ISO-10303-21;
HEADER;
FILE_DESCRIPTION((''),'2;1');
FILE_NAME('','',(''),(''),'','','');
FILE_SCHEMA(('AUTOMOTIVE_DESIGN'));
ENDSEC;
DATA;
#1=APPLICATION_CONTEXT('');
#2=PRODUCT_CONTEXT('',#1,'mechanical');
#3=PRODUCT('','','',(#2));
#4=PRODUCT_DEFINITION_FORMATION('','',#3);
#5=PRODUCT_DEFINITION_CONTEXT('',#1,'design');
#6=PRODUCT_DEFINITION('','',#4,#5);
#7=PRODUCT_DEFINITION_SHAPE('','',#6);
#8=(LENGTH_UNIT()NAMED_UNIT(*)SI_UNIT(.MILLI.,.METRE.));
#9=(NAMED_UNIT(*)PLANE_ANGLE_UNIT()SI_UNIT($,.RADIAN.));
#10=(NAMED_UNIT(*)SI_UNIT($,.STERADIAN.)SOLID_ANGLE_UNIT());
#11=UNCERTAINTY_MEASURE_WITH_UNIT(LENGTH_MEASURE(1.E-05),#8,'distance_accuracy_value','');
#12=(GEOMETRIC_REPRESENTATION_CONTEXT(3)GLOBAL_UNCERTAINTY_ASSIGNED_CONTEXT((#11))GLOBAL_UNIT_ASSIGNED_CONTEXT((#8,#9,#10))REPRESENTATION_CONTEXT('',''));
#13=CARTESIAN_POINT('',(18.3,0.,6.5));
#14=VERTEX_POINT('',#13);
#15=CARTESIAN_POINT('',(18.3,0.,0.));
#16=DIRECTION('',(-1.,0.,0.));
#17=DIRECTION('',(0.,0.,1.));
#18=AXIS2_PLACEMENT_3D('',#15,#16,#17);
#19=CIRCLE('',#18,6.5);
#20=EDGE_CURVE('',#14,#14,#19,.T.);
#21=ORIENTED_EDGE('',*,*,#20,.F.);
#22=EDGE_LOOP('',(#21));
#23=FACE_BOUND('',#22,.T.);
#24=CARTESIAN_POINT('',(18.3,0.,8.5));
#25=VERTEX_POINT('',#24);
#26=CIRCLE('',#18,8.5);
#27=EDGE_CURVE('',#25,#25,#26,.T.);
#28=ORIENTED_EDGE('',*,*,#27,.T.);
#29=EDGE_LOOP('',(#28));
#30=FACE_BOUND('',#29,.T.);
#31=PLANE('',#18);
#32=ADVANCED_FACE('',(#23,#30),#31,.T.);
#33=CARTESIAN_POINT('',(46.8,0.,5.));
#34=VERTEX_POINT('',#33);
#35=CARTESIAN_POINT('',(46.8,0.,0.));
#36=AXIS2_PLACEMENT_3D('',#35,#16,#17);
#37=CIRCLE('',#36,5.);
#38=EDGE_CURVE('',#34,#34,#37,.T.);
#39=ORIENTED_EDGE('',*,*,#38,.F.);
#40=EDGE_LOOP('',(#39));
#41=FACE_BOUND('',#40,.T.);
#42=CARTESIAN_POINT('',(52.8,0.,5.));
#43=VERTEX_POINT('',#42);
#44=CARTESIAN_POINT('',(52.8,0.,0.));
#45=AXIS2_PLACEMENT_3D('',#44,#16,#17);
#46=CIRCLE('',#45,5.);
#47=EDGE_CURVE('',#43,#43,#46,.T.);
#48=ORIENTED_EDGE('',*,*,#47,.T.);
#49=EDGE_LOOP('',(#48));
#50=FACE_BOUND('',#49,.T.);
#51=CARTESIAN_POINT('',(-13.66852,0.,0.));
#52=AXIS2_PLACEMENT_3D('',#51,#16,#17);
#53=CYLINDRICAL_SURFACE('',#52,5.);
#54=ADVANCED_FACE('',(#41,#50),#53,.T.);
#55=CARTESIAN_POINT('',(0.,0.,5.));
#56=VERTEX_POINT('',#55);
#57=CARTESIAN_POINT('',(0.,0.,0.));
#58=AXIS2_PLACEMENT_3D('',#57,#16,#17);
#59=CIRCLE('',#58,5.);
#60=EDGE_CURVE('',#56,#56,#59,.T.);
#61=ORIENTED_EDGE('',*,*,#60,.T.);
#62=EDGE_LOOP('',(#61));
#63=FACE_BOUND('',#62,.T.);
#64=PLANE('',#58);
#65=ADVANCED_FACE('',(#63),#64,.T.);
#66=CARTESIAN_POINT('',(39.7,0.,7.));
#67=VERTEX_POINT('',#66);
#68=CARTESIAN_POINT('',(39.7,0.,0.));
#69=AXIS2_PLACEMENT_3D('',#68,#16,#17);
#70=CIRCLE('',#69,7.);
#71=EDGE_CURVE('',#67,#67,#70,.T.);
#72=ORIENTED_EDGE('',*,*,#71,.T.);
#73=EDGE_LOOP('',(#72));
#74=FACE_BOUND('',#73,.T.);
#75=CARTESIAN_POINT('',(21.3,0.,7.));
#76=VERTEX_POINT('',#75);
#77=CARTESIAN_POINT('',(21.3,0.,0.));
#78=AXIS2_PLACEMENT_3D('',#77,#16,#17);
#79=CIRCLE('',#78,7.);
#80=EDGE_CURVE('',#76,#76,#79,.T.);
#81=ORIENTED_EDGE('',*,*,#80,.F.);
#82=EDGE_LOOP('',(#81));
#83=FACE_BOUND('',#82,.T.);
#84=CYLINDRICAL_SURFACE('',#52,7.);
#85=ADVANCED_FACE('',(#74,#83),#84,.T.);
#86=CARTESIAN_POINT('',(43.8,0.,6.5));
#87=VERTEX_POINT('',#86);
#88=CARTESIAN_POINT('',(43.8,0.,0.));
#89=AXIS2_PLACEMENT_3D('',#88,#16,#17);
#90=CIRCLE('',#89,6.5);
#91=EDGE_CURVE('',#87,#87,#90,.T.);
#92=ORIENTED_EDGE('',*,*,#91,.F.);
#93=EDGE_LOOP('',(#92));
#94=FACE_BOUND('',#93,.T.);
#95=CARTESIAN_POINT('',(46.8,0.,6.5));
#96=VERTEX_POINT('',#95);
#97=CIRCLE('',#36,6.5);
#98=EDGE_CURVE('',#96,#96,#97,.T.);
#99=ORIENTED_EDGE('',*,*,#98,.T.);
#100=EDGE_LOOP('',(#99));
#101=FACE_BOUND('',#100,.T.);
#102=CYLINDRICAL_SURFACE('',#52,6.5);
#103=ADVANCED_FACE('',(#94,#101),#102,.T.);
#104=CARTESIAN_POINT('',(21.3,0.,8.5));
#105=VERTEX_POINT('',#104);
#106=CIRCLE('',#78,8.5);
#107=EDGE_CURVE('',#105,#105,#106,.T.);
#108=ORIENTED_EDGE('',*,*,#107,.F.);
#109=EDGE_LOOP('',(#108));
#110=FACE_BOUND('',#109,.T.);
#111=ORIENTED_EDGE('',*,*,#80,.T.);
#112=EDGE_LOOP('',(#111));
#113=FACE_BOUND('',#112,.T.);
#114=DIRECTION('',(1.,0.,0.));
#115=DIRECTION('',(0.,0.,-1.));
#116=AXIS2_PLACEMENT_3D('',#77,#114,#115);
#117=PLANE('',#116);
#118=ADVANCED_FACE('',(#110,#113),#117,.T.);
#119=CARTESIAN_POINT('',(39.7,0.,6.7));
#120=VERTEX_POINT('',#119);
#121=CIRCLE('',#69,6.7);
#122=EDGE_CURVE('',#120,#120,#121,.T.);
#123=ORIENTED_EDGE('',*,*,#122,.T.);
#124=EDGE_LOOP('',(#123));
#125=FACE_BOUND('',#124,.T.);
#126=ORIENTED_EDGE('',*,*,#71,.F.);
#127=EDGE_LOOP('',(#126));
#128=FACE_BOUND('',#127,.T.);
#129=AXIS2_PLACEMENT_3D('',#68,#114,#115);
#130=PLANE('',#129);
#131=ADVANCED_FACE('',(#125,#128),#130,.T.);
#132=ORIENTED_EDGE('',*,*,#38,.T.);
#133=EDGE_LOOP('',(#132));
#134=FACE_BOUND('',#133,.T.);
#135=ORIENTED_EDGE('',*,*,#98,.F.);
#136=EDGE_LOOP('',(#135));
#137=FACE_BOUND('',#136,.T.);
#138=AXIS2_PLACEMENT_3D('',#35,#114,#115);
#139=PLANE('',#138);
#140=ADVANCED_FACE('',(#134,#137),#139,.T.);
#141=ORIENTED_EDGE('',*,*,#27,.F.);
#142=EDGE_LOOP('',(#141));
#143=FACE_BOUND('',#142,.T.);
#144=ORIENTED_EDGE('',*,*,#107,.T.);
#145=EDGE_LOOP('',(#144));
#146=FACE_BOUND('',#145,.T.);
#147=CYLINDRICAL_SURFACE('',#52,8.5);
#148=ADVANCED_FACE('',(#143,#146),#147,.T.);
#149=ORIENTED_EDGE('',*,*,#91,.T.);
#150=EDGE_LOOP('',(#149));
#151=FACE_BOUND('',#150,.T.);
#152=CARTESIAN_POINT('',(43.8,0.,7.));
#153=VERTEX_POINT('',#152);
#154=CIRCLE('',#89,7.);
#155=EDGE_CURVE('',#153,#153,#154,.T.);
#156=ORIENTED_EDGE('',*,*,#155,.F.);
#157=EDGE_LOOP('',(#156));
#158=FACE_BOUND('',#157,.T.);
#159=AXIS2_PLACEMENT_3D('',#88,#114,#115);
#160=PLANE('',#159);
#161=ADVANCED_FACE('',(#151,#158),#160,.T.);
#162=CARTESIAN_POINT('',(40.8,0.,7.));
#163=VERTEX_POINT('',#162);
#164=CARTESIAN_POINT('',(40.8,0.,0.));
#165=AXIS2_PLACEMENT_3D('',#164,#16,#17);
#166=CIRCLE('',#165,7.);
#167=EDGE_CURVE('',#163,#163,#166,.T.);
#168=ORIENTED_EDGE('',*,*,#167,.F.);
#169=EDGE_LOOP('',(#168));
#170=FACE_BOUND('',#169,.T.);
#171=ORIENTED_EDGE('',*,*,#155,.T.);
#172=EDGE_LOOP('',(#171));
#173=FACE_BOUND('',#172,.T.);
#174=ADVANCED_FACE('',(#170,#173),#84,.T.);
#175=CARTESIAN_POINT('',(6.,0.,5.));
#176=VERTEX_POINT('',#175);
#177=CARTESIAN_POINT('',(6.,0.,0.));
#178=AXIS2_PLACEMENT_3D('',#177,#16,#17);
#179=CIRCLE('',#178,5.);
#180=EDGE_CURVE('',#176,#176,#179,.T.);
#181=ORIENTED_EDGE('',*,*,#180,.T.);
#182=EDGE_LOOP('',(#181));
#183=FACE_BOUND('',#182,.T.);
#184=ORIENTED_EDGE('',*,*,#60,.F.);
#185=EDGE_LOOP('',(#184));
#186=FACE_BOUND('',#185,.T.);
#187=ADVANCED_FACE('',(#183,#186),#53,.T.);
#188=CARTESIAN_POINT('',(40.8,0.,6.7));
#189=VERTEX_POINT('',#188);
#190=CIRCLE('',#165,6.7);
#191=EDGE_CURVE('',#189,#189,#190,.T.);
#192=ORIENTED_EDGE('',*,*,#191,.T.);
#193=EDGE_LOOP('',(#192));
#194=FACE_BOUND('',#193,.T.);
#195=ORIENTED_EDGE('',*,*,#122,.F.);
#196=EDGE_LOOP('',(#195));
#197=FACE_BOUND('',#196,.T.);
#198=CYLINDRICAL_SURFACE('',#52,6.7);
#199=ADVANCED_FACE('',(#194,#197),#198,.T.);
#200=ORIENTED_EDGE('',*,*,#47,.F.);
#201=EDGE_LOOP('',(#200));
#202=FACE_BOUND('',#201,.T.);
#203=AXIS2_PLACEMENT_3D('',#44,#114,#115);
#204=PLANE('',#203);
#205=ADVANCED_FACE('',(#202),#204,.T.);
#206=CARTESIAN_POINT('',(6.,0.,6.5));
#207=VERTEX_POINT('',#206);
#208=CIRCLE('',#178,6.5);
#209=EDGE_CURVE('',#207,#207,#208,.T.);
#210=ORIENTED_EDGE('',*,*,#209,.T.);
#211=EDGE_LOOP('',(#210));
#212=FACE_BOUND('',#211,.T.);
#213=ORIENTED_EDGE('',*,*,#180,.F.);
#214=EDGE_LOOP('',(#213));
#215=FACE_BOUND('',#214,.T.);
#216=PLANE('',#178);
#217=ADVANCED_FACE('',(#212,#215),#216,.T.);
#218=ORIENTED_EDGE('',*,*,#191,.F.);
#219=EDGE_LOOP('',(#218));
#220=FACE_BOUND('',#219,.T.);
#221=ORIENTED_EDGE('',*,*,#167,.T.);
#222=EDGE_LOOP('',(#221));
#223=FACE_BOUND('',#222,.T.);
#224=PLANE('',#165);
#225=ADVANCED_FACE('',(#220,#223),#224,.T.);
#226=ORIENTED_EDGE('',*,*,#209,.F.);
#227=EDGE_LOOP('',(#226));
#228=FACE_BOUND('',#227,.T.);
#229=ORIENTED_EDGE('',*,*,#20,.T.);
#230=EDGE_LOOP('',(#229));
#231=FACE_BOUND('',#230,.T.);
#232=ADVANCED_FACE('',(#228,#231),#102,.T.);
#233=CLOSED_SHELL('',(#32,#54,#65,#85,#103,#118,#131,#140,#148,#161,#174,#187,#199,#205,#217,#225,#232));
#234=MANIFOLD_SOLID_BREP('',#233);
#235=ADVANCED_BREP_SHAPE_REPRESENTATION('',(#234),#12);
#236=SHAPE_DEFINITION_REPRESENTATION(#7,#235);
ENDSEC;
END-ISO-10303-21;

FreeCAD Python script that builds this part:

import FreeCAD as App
import Part
import Sketcher

V = App.Vector


def add_polygon(sketch, points):
    """Adds a closed chain of lines whose ends are joined by coincident constraints."""
    first, n = sketch.GeometryCount, len(points)
    for a, b in zip(points, points[1:] + points[:1]):
        sketch.addGeometry(Part.LineSegment(App.Vector(*a, 0), App.Vector(*b, 0)), False)
    for i in range(n):
        sketch.addConstraint(Sketcher.Constraint("Coincident", first + i, 2, first + (i + 1) % n, 1))

doc = App.newDocument("Part")
params = doc.addObject("Spreadsheet::Sheet", "Params")
for row, (alias, value) in enumerate([
    ("sketch1_width", "6 mm"),
    ("sketch1_width2", "3 mm"),
    ("sketch1_height", "5 mm"),
    ("sketch1_height2", "2 mm"),
    ("sketch1_width3", "52.8 mm"),
    ("revolution_angle", "360 deg"),
], start=1):
    params.set(f"A{row}", alias)
    params.set(f"B{row}", "=" + value)
    params.setAlias(f"B{row}", alias)

body = doc.addObject("PartDesign::Body", "Body")

# Sketch on XY plane
sketch1 = body.newObject("Sketcher::SketchObject", "Sketch")
sketch1.AttachmentSupport = (doc.getObject("XY_Plane"), [""])
sketch1.MapMode = "FlatFace"
add_polygon(sketch1, [(0, 5), (0, 0), (52.8, 0), (52.8, 5), (46.8, 5), (46.8, 6.5), (43.8, 6.5), (43.8, 7), (40.8, 7), (40.8, 6.7), (39.7, 6.7), (39.7, 7), (21.3, 7), (21.3, 8.5), (18.3, 8.5), (18.3, 6.5), (6, 6.5), (6, 5)])  # lines 0-17
sketch1.addConstraint(Sketcher.Constraint("Vertical", 0))
sketch1.addConstraint(Sketcher.Constraint("Horizontal", 1))
sketch1.addConstraint(Sketcher.Constraint("Vertical", 2))
sketch1.addConstraint(Sketcher.Constraint("Horizontal", 3))
sketch1.addConstraint(Sketcher.Constraint("Vertical", 4))
sketch1.addConstraint(Sketcher.Constraint("Horizontal", 5))
sketch1.addConstraint(Sketcher.Constraint("Vertical", 6))
sketch1.addConstraint(Sketcher.Constraint("Horizontal", 7))
sketch1.addConstraint(Sketcher.Constraint("Vertical", 8))
sketch1.addConstraint(Sketcher.Constraint("Horizontal", 9))
sketch1.addConstraint(Sketcher.Constraint("Vertical", 10))
sketch1.addConstraint(Sketcher.Constraint("Horizontal", 11))
sketch1.addConstraint(Sketcher.Constraint("Vertical", 12))
sketch1.addConstraint(Sketcher.Constraint("Horizontal", 13))
sketch1.addConstraint(Sketcher.Constraint("Vertical", 14))
sketch1.addConstraint(Sketcher.Constraint("Horizontal", 15))
sketch1.addConstraint(Sketcher.Constraint("Vertical", 16))
sketch1.addConstraint(Sketcher.Constraint("Horizontal", 17))
sketch1.addConstraint(Sketcher.Constraint("Coincident", 0, 2, -1, 1))
sketch1.addConstraint(Sketcher.Constraint("Horizontal", 7, 2, 10, 2))
sketch1.addConstraint(Sketcher.Constraint("Horizontal", 5, 2, 14, 2))
sketch1.addConstraint(Sketcher.Constraint("Horizontal", 3, 2, 16, 2))
sketch1.addConstraint(Sketcher.Constraint("Equal", 5, 7))
sketch1.addConstraint(Sketcher.Constraint("Equal", 7, 13))
sketch1.addConstraint(Sketcher.Constraint("Equal", 3, 17))
sketch1.addConstraint(Sketcher.Constraint("Equal", 4, 12))
sketch1.addConstraint(Sketcher.Constraint("DistanceX", 3, 2, 3, 1, 6.0))
sketch1.addConstraint(Sketcher.Constraint("DistanceX", 5, 2, 5, 1, 3.0))
sketch1.addConstraint(Sketcher.Constraint("DistanceY", 0, 2, 0, 1, 5.0))
sketch1.addConstraint(Sketcher.Constraint("DistanceY", 14, 2, 14, 1, 2.0))
sketch1.addConstraint(Sketcher.Constraint("DistanceX", 1, 1, 1, 2, 52.8))
sketch1.addConstraint(Sketcher.Constraint("DistanceX", 9, 2, 9, 1, 1.1))
sketch1.addConstraint(Sketcher.Constraint("DistanceX", 11, 2, 11, 1, 18.4))
sketch1.addConstraint(Sketcher.Constraint("DistanceY", 4, 1, 4, 2, 1.5))
sketch1.addConstraint(Sketcher.Constraint("DistanceY", 8, 2, 8, 1, 0.3))
sketch1.setExpression("Constraints[44]", "Params.sketch1_width")
sketch1.setExpression("Constraints[45]", "Params.sketch1_width2")
sketch1.setExpression("Constraints[46]", "Params.sketch1_height")
sketch1.setExpression("Constraints[47]", "Params.sketch1_height2")
sketch1.setExpression("Constraints[48]", "Params.sketch1_width3")
revolution = body.newObject("PartDesign::Revolution", "Revolution")
revolution.Profile = sketch1
revolution.ReferenceAxis = (sketch1, ["H_Axis"])
revolution.setExpression("Angle", "Params.revolution_angle")

doc.recompute()
